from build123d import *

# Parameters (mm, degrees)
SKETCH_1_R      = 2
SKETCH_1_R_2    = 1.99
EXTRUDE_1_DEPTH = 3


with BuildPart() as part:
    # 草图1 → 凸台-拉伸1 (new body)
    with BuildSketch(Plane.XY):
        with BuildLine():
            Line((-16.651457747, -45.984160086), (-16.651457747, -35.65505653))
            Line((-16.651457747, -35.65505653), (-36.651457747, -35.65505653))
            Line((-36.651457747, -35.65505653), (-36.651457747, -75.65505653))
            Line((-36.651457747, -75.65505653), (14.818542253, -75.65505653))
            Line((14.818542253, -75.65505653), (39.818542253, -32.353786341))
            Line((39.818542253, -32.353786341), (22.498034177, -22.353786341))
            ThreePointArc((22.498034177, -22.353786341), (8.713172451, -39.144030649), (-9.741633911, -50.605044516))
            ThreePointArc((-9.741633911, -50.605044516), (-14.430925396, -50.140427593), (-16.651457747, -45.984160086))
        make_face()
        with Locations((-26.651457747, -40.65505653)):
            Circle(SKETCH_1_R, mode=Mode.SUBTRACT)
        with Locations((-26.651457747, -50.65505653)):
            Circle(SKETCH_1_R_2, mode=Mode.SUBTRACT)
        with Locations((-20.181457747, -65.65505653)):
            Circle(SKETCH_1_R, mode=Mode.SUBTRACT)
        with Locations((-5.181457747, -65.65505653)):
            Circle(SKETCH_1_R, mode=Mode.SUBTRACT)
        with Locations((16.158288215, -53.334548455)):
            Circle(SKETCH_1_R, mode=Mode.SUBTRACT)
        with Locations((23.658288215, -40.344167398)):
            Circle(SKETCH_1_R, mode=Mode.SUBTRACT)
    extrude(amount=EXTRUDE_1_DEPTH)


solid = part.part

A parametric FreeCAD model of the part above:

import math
import FreeCAD as App
import Part
import Sketcher
Q = App.Units.Quantity

doc = App.newDocument("Part")
params = doc.addObject("Spreadsheet::Sheet", "Params")
for row, (alias, value) in enumerate([
    ("sketch1_diameter", "4 mm"),
    ("sketch1_radius", "5 mm"),
    ("sketch1_diameter2", "3.98 mm"),
    ("sketch1_width", "20 mm"),
    ("sketch1_height", "40 mm"),
    ("pad1_length", "3 mm"),
], start=1):
    params.set(f"A{row}", alias)
    params.set(f"B{row}", "=" + value)
    params.setAlias(f"B{row}", alias)

body = doc.addObject("PartDesign::Body", "Body")

# Sketch on XY plane
sketch1 = doc.addObject("Sketcher::SketchObject", "Sketch")
body.addObject(sketch1)
sketch1.AttachmentSupport = (doc.XY_Plane, [""])
sketch1.MapMode = "FlatFace"
sketch1.addGeometry([
    Part.LineSegment(App.Vector(-16.651458, -45.98416, 0), App.Vector(-16.651458, -35.655057, 0)),  # 0
    Part.LineSegment(App.Vector(-16.651458, -35.655057, 0), App.Vector(-36.651458, -35.655057, 0)),  # 1
    Part.LineSegment(App.Vector(-36.651458, -35.655057, 0), App.Vector(-36.651458, -75.655057, 0)),  # 2
    Part.LineSegment(App.Vector(-36.651458, -75.655057, 0), App.Vector(14.818542, -75.655057, 0)),  # 3
    Part.LineSegment(App.Vector(14.818542, -75.655057, 0), App.Vector(39.818542, -32.353786, 0)),  # 4
    Part.LineSegment(App.Vector(39.818542, -32.353786, 0), App.Vector(22.498034, -22.353786, 0)),  # 5
    Part.ArcOfCircle(Part.Circle(App.Vector(-35.181458, 10.947484, 0), App.Vector(0, 0, 1), 66.60254), math.radians(-67.544562), math.radians(-30)),  # 6
    Part.ArcOfCircle(Part.Circle(App.Vector(-11.651458, -45.98416, 0), App.Vector(0, 0, 1), 5), math.radians(180), math.radians(292.455438)),  # 7
    Part.Circle(App.Vector(-20.181458, -65.655057, 0), App.Vector(0, 0, 1), 2),  # 8
    Part.Circle(App.Vector(-5.181458, -65.655057, 0), App.Vector(0, 0, 1), 2),  # 9
    Part.Circle(App.Vector(16.158288, -53.334548, 0), App.Vector(0, 0, 1), 2),  # 10
    Part.Circle(App.Vector(-26.651458, -50.655057, 0), App.Vector(0, 0, 1), 1.99),  # 11
    Part.Circle(App.Vector(-26.651458, -40.655057, 0), App.Vector(0, 0, 1), 2),  # 12
    Part.Circle(App.Vector(23.658288, -40.344167, 0), App.Vector(0, 0, 1), 2),  # 13
], False)
sketch1.addConstraint([
    Sketcher.Constraint("Coincident", 0, 2, 1, 1),
    Sketcher.Constraint("Coincident", 1, 2, 2, 1),
    Sketcher.Constraint("Coincident", 2, 2, 3, 1),
    Sketcher.Constraint("Coincident", 3, 2, 4, 1),
    Sketcher.Constraint("Coincident", 4, 2, 5, 1),
    Sketcher.Constraint("Coincident", 5, 2, 6, 2),
    Sketcher.Constraint("Tangent", 6, 1, 7, 2),
    Sketcher.Constraint("Tangent", 7, 1, 0, 1),
    Sketcher.Constraint("Vertical", 0),
    Sketcher.Constraint("Horizontal", 1),
    Sketcher.Constraint("Vertical", 2),
    Sketcher.Constraint("Horizontal", 3),
    Sketcher.Constraint("Equal", 8, 9),
    Sketcher.Constraint("Equal", 9, 10),
    Sketcher.Constraint("Equal", 10, 12),
    Sketcher.Constraint("Equal", 12, 13),
    Sketcher.Constraint("Perpendicular", 4, 5),
    Sketcher.Constraint("Horizontal", 8, 3, 9, 3),
    Sketcher.Constraint("Vertical", 11, 3, 12, 3),
    Sketcher.Constraint("Diameter", 8, 4.0),
    Sketcher.Constraint("Radius", 7, 5.0),
    Sketcher.Constraint("Diameter", 11, 3.98),
    Sketcher.Constraint("DistanceX", 1, 2, 1, 1, 20.0),
    Sketcher.Constraint("DistanceY", 2, 2, 2, 1, 40.0),
    Sketcher.Constraint("Angle", 4, Q("60 deg")),
    Sketcher.Constraint("Distance", 4, 50.0),
    Sketcher.Constraint("Distance", 5, 20.0),
    Sketcher.Constraint("DistanceX", 6, 3, 8, 3, 15.0),
    Sketcher.Constraint("DistanceX", 8, 3, 9, 3, 15.0),
    Sketcher.Constraint("DistanceX", 11, 3, 7, 3, 15.0),
    Sketcher.Constraint("DistanceY", 8, 3, 11, 3, 15.0),
    Sketcher.Constraint("DistanceY", 11, 3, 12, 3, 10.0),
    Sketcher.Constraint("DistanceY", 12, 3, 0, 2, 5.0),
    Sketcher.Constraint("DistanceX", 9, 3, 3, 2, 20.0),
    Sketcher.Constraint("DistanceX", 3, 1, 3, 2, 51.47),
    Sketcher.Constraint("DistanceX", 10, 3, 13, 3, 7.5),
    Sketcher.Constraint("Radius", 6, 66.60254),
    Sketcher.Constraint("DistanceY", 7, 3, -1, 1, 45.98416),
    Sketcher.Constraint("DistanceX", -1, 1, 10, 3, 16.158288),
    Sketcher.Constraint("DistanceY", 10, 3, -1, 1, 53.334548),
    Sketcher.Constraint("DistanceY", 10, 3, 13, 3, 12.990381),
    Sketcher.Constraint("DistanceX", 6, 3, -1, 1, 35.181458),
])
sketch1.setExpression("Constraints[19]", "Params.sketch1_diameter")
sketch1.setExpression("Constraints[20]", "Params.sketch1_radius")
sketch1.setExpression("Constraints[21]", "Params.sketch1_diameter2")
sketch1.setExpression("Constraints[22]", "Params.sketch1_width")
sketch1.setExpression("Constraints[23]", "Params.sketch1_height")
pad1 = doc.addObject("PartDesign::Pad", "Pad")
body.addObject(pad1)
pad1.Profile = sketch1
pad1.setExpression("Length", "Params.pad1_length")

doc.recompute()
